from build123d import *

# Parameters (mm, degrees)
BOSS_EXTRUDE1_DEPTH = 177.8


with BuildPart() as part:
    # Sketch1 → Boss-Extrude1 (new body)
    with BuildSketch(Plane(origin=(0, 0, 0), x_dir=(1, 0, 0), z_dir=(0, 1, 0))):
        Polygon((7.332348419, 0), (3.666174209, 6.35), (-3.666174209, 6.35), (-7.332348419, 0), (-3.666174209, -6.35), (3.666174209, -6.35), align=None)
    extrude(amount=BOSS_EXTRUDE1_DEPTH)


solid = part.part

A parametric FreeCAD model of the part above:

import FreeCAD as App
import Part
import Sketcher

V = App.Vector
Q = App.Units.Quantity


def add_polygon(sketch, points):
    """Adds a closed chain of lines whose ends are joined by coincident constraints."""
    first, n = sketch.GeometryCount, len(points)
    for a, b in zip(points, points[1:] + points[:1]):
        sketch.addGeometry(Part.LineSegment(App.Vector(*a, 0), App.Vector(*b, 0)), False)
    for i in range(n):
        sketch.addConstraint(Sketcher.Constraint("Coincident", first + i, 2, first + (i + 1) % n, 1))

doc = App.newDocument("Part")
body = doc.addObject("PartDesign::Body", "Body")

# Sketch on XZ plane
sketch1 = body.newObject("Sketcher::SketchObject", "Sketch")
sketch1.AttachmentSupport = (doc.getObject("XZ_Plane"), [""])
sketch1.MapMode = "FlatFace"
add_polygon(sketch1, [(7, 0), (4, -6), (-4, -6), (-7, 0), (-4, 6), (4, 6)])  # lines 0-5
sketch1.addConstraint([
    Sketcher.Constraint("Horizontal", 1),
    Sketcher.Constraint("Horizontal", 4),
    Sketcher.Constraint("Symmetric", 0, 2, 3, 2, -1, 1),
    Sketcher.Constraint("Symmetric", 2, 2, 5, 2, -1, 1),
    Sketcher.Constraint("PointOnObject", 2, 2, -1),
    Sketcher.Constraint("Parallel", 2, 5),
    Sketcher.Constraint("Vertical", 1, 2, 3, 2),
    Sketcher.Constraint("Angle", 0, Q("-120 deg")),
    Sketcher.Constraint("DistanceY", 1, 2, 3, 2, Q("0.5 in")),
    Sketcher.Constraint("DistanceX", 1, 2, 1, 1, Q("7.332348 mm")),
])
pad1 = body.newObject("PartDesign::Pad", "Pad")
pad1.Profile = sketch1
pad1.Length = Q("7 in")
pad1.Reversed = True

doc.recompute()
